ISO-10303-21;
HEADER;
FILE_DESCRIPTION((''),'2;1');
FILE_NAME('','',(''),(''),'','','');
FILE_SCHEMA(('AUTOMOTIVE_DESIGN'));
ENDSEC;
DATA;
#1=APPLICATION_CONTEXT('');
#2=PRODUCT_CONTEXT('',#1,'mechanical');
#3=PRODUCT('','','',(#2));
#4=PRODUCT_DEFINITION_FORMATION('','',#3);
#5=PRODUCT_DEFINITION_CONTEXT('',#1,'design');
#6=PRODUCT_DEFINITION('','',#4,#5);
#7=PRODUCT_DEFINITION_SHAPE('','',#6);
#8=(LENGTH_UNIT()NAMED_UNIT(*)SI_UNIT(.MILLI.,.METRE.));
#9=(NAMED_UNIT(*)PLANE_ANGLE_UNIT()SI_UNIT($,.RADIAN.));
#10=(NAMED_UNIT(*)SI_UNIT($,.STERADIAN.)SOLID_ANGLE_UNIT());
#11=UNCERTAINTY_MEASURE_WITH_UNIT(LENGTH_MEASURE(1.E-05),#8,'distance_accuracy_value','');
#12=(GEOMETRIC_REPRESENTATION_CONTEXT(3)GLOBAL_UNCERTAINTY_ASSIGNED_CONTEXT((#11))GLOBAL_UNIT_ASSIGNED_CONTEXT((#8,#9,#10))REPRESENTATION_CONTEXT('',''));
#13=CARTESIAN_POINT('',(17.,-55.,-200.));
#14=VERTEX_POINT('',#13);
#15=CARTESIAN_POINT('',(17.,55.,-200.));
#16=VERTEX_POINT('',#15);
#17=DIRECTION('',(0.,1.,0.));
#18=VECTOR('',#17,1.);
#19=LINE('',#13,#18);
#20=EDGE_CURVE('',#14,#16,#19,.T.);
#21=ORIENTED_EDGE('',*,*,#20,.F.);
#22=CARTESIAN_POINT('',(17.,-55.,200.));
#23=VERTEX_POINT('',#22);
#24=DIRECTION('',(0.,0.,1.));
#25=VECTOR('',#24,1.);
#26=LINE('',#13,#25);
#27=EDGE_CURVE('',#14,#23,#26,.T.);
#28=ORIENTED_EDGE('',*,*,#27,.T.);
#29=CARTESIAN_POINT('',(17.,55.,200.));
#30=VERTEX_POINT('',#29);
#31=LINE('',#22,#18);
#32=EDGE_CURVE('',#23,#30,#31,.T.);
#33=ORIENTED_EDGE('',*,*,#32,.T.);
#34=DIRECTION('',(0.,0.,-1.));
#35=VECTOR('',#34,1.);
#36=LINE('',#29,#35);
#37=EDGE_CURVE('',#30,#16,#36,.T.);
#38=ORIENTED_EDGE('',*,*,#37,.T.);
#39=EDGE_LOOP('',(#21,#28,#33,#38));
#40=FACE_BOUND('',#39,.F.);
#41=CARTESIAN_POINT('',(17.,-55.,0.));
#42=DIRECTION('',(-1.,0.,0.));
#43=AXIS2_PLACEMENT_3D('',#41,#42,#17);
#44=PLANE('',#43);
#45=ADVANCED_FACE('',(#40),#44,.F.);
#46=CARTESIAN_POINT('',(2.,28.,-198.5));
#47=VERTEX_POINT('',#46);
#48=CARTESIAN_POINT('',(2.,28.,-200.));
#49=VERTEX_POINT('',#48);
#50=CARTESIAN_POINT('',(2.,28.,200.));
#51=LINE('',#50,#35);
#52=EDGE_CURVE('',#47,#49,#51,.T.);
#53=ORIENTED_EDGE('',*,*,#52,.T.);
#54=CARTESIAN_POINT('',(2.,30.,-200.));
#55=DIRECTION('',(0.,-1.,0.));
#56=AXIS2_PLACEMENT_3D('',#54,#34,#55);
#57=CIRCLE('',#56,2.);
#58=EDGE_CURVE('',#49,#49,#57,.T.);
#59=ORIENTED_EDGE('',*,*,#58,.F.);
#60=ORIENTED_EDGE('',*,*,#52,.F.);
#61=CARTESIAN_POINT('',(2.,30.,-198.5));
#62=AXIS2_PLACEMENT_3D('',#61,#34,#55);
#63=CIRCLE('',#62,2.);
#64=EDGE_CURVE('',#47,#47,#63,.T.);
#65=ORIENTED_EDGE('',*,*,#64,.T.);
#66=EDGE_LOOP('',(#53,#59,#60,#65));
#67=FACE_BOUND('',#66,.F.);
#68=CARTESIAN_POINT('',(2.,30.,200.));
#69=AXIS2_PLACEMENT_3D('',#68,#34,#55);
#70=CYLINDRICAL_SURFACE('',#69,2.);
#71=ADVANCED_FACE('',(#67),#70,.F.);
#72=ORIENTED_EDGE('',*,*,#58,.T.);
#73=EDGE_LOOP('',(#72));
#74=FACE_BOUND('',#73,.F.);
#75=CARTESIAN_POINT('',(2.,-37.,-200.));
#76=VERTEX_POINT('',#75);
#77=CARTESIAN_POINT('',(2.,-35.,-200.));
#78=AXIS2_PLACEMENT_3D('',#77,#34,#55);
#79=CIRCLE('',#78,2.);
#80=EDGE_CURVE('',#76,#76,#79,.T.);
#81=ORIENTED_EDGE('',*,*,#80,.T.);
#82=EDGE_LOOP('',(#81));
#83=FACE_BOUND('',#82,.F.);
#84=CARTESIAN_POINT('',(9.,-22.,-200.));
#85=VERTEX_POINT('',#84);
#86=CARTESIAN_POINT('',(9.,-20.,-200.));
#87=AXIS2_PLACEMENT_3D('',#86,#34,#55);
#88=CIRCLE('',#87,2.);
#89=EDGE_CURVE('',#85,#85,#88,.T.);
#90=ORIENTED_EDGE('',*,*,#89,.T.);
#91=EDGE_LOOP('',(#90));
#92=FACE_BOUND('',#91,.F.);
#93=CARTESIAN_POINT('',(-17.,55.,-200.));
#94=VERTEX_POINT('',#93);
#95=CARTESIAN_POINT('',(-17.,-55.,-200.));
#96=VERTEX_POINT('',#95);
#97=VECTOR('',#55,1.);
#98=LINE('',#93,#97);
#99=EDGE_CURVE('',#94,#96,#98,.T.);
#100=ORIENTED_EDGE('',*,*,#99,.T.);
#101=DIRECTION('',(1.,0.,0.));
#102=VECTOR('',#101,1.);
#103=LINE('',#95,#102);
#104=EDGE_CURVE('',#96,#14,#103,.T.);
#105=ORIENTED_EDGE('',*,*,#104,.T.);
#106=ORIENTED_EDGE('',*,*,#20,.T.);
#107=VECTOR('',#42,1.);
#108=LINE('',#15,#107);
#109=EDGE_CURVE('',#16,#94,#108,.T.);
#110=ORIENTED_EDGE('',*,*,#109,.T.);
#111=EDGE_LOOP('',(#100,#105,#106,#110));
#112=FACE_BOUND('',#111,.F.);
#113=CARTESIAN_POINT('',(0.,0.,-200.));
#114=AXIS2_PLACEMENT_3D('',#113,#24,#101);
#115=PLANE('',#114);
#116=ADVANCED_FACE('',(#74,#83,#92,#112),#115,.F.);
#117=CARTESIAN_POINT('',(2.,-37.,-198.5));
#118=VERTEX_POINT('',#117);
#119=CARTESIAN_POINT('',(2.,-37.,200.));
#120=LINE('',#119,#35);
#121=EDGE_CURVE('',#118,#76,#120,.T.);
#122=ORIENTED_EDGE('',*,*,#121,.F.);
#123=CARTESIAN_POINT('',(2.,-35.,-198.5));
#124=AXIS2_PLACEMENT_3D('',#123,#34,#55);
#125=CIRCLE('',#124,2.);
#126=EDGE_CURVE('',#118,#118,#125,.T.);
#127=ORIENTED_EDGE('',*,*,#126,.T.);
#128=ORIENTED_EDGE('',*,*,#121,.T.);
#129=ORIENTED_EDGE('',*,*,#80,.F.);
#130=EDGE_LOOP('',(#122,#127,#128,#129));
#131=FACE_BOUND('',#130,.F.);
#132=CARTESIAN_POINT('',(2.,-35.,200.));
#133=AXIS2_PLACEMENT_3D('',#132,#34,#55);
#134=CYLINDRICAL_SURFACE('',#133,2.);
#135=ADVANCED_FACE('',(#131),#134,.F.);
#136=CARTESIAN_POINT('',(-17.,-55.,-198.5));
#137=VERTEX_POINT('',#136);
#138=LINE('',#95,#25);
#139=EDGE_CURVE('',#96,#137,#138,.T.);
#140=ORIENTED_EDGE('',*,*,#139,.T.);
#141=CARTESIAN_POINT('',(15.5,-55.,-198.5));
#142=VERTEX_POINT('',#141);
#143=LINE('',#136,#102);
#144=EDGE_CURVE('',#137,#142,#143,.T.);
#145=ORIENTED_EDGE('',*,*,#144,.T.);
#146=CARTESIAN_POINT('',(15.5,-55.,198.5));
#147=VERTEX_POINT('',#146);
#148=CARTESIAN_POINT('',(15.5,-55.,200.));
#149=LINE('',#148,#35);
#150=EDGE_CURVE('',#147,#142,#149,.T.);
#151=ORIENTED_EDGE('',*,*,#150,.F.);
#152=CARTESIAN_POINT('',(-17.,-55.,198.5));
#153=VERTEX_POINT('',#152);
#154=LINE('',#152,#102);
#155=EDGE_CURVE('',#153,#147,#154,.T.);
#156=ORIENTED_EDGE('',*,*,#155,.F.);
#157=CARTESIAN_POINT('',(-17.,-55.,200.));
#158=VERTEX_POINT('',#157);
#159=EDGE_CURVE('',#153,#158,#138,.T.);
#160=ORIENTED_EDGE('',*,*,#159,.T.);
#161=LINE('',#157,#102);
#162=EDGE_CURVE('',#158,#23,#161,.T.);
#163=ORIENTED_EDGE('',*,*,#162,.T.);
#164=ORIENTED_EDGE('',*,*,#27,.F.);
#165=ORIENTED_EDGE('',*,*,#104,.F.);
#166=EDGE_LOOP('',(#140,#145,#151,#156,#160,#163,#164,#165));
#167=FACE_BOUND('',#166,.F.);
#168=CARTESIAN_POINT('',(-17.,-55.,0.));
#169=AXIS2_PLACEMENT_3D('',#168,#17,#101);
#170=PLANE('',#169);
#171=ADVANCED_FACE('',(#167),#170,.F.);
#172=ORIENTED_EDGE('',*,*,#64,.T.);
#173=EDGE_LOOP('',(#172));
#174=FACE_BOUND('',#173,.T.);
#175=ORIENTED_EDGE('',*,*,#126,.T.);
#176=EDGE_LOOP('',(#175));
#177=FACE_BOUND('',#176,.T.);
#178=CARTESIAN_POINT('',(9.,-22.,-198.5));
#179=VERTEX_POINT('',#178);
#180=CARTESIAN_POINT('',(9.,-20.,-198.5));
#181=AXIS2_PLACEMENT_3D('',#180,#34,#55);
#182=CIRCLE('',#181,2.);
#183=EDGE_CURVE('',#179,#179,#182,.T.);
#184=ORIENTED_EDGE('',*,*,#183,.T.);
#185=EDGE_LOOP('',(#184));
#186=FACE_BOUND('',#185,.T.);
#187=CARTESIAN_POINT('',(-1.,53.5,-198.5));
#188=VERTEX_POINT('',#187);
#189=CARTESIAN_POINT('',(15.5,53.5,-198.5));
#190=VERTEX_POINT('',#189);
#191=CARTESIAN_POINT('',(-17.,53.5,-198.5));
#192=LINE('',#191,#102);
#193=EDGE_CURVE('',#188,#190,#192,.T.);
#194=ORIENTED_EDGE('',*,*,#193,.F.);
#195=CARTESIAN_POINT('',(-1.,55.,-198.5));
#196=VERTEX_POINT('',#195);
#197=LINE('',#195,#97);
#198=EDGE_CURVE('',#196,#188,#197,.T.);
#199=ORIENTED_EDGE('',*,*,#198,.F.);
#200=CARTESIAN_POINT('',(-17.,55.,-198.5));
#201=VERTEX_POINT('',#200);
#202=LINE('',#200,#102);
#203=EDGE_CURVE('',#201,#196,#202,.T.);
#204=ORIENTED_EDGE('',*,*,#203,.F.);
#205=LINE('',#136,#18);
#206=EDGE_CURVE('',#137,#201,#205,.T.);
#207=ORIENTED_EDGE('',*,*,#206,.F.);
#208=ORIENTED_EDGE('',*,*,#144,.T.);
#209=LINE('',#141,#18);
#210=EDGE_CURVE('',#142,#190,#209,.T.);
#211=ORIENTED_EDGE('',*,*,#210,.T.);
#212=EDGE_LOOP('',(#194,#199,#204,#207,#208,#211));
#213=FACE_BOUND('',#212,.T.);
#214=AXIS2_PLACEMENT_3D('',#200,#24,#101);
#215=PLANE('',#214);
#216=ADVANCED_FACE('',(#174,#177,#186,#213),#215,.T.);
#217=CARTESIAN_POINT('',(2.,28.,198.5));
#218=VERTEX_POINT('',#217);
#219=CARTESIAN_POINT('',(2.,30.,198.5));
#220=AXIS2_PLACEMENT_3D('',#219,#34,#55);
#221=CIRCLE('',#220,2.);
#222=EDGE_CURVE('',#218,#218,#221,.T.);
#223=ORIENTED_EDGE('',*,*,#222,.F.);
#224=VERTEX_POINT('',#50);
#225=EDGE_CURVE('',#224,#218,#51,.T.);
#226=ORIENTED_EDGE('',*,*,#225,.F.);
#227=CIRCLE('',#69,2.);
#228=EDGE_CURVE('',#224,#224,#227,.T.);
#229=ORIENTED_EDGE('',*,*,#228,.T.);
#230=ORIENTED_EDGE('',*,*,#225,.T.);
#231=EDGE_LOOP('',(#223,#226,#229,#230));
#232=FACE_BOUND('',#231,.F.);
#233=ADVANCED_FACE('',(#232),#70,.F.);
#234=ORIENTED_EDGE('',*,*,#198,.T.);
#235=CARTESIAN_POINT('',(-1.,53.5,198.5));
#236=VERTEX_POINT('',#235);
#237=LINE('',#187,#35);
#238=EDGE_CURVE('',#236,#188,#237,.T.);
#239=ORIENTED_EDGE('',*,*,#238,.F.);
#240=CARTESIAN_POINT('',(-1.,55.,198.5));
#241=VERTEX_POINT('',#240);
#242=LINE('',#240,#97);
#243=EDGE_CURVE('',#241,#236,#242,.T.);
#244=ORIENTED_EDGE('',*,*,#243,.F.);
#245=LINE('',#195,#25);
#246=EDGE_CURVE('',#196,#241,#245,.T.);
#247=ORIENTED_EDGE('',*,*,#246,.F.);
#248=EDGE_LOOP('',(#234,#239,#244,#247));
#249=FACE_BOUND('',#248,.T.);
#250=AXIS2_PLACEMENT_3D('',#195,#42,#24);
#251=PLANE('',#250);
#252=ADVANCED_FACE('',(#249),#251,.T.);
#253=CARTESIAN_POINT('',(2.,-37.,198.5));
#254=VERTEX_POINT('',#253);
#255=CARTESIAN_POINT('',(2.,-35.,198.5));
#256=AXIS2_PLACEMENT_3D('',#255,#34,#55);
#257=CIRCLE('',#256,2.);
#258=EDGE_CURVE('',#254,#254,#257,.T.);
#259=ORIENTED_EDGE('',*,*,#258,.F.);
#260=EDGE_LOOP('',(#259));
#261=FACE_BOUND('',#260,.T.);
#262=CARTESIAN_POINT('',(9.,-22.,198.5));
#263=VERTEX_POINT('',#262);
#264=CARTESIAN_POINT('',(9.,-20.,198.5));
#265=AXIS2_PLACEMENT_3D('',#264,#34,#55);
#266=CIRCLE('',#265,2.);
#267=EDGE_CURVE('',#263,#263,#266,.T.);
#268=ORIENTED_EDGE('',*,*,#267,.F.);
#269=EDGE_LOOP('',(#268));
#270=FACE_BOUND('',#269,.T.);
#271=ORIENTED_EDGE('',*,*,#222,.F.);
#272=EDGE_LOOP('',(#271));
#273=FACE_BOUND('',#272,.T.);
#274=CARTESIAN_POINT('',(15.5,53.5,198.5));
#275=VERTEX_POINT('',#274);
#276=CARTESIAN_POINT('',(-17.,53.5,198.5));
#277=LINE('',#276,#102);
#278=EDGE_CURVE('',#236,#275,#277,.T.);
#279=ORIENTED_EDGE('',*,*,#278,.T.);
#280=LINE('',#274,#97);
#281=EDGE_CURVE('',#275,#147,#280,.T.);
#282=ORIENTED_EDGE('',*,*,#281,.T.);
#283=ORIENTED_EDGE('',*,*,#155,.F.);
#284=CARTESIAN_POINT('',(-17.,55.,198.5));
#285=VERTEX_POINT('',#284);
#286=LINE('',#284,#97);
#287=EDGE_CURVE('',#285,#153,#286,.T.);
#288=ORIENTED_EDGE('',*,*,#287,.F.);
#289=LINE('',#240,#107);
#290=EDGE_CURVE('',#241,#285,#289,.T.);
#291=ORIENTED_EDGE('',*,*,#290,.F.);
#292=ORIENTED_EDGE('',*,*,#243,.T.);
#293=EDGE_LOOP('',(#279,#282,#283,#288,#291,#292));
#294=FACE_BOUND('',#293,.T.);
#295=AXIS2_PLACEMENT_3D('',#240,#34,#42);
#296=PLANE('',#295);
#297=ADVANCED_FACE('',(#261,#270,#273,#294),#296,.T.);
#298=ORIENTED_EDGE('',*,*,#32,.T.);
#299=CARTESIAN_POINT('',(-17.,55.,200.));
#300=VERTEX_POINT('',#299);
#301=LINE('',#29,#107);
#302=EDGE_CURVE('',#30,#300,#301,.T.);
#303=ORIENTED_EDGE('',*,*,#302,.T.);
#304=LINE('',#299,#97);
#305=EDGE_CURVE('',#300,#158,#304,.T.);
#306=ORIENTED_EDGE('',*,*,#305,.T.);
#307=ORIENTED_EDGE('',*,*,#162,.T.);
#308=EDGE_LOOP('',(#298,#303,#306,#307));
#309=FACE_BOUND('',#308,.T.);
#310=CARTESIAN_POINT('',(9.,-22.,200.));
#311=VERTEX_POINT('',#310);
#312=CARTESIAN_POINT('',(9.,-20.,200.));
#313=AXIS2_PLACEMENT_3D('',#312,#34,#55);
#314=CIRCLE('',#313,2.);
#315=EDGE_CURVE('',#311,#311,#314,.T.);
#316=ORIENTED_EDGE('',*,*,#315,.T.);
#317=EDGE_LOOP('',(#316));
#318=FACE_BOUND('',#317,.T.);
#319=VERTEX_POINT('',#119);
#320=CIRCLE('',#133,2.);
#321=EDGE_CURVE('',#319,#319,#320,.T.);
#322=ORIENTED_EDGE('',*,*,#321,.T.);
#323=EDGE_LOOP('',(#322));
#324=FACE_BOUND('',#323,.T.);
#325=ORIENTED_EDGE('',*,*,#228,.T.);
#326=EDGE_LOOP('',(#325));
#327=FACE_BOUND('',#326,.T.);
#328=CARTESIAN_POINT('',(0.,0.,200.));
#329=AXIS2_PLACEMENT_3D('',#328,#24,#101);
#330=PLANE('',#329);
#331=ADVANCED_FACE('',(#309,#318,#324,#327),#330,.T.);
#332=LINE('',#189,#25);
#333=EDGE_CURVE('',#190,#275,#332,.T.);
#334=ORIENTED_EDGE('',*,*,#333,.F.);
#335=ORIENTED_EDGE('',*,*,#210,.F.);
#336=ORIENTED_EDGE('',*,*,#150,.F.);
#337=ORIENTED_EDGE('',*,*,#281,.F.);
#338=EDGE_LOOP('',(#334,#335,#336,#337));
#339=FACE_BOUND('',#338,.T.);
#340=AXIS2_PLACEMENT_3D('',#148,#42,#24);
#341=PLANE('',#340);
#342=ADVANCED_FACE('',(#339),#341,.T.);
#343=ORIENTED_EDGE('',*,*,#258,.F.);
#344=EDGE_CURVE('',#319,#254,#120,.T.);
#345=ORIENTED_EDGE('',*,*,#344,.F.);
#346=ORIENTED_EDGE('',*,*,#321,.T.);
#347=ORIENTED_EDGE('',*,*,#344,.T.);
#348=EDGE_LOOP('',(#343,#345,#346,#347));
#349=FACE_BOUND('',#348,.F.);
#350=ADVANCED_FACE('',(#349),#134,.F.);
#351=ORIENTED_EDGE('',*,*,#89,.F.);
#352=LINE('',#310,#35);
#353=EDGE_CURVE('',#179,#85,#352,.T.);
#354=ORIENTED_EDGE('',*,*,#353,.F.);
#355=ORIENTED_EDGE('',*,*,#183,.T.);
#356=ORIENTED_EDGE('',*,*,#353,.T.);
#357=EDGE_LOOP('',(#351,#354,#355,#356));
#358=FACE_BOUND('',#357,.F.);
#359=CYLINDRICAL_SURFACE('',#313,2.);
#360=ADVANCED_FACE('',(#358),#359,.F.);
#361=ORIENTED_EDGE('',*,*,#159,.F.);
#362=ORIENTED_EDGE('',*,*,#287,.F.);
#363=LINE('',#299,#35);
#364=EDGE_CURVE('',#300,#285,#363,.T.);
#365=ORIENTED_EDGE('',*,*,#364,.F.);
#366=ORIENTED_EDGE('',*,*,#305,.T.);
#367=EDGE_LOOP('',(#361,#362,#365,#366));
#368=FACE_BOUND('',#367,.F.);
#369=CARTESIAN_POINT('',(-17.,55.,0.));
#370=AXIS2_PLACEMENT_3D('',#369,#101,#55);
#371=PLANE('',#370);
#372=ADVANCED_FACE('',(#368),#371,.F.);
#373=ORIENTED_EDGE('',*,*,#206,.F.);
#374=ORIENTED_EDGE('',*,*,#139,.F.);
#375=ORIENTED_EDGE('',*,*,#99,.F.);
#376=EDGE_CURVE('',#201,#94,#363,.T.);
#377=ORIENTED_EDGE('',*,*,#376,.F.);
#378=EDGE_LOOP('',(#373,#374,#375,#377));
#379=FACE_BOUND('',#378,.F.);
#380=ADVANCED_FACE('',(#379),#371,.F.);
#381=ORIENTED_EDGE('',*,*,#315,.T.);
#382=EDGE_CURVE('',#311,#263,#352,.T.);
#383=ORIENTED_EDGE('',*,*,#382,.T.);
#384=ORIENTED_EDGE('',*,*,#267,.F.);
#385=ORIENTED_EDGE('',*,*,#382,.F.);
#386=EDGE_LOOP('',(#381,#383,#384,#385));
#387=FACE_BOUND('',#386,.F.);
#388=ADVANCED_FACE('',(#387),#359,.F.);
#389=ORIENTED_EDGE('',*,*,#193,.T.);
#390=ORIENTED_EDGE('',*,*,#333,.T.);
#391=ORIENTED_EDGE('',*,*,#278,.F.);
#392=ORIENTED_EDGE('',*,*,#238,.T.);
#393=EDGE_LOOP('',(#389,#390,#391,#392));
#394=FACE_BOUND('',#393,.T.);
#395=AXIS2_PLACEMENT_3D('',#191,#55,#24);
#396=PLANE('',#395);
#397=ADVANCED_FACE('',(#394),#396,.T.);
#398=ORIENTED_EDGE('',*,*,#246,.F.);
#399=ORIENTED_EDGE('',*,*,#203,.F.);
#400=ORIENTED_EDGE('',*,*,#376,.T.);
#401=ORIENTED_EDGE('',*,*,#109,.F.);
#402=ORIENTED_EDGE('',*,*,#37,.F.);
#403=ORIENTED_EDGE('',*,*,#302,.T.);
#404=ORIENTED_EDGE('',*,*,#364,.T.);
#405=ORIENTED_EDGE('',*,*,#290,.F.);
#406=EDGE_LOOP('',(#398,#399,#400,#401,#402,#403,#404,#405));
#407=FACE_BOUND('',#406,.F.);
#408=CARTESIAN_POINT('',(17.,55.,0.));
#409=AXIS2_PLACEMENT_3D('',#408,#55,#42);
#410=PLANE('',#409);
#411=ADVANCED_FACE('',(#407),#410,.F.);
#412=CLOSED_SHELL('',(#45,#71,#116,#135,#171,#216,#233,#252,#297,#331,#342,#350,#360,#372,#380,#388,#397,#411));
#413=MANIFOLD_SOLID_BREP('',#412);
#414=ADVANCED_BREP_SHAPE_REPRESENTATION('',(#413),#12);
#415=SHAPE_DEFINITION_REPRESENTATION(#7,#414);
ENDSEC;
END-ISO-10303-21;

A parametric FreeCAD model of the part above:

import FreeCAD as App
import Part
import Sketcher

V = App.Vector
Q = App.Units.Quantity

doc = App.newDocument("Part")
params = doc.addObject("Spreadsheet::Sheet", "Params")
for row, (alias, value) in enumerate([
    ("sketch1_width", "34 mm"),
    ("sketch1_height", "110 mm"),
    ("pad1_length", "400 mm"),
    ("sketch2_diameter", "4 mm"),
    ("hole_diameter", "4 mm"),
    ("sketch3_height", "397 mm"),
    ("sketch3_width", "108.5 mm"),
    ("pocket1_length", "32.5 mm"),
    ("sketch4_width", "16 mm"),
    ("sketch4_height", "397 mm"),
    ("pocket2_length", "32.5 mm"),
], start=1):
    params.set(f"A{row}", alias)
    params.set(f"B{row}", "=" + value)
    params.setAlias(f"B{row}", alias)

body = doc.addObject("PartDesign::Body", "Body")

# Sketch on XY plane
sketch1 = body.newObject("Sketcher::SketchObject", "Sketch")
sketch1.AttachmentSupport = (doc.getObject("XY_Plane"), [""])
sketch1.MapMode = "FlatFace"
sketch1.addGeometry(Part.LineSegment(V(-17, 55, 0), V(-17, -55, 0)), False)
sketch1.addGeometry(Part.LineSegment(V(-17, -55, 0), V(17, -55, 0)), False)
sketch1.addGeometry(Part.LineSegment(V(17, -55, 0), V(17, 55, 0)), False)
sketch1.addGeometry(Part.LineSegment(V(17, 55, 0), V(-17, 55, 0)), False)
sketch1.addConstraint(Sketcher.Constraint("Coincident", 0, 2, 1, 1))
sketch1.addConstraint(Sketcher.Constraint("Coincident", 1, 2, 2, 1))
sketch1.addConstraint(Sketcher.Constraint("Coincident", 2, 2, 3, 1))
sketch1.addConstraint(Sketcher.Constraint("Coincident", 3, 2, 0, 1))
sketch1.addConstraint(Sketcher.Constraint("Vertical", 0))
sketch1.addConstraint(Sketcher.Constraint("Horizontal", 1))
sketch1.addConstraint(Sketcher.Constraint("Vertical", 2))
sketch1.addConstraint(Sketcher.Constraint("Horizontal", 3))
sketch1.addConstraint(Sketcher.Constraint("Symmetric", 0, 2, 2, 2, -1, 1))
sketch1.addConstraint(Sketcher.Constraint("DistanceX", 1, 1, 1, 2, Q("34 mm")))
sketch1.addConstraint(Sketcher.Constraint("DistanceY", 0, 2, 0, 1, Q("110 mm")))
sketch1.setExpression("Constraints[9]", "Params.sketch1_width")
sketch1.setExpression("Constraints[10]", "Params.sketch1_height")
pad1 = body.newObject("PartDesign::Pad", "Pad")
pad1.Profile = sketch1
pad1.setExpression("Length", "Params.pad1_length")
pad1.Midplane = True

# Sketch on XY plane
sketch2 = body.newObject("Sketcher::SketchObject", "Sketch001")
sketch2.AttachmentSupport = (doc.getObject("XY_Plane"), [""])
sketch2.MapMode = "FlatFace"
sketch2.AttachmentOffset = App.Placement(V(0, 0, 200), App.Rotation())
sketch2.addGeometry(Part.Circle(V(2, 30, 0), V(0, 0, 1), 2), False)
sketch2.addGeometry(Part.Circle(V(9, -20, 0), V(0, 0, 1), 2), False)
sketch2.addGeometry(Part.Circle(V(2, -35, 0), V(0, 0, 1), 2), False)
sketch2.addConstraint(Sketcher.Constraint("Equal", 0, 1))
sketch2.addConstraint(Sketcher.Constraint("Equal", 1, 2))
sketch2.addConstraint(Sketcher.Constraint("Vertical", 0, 3, 2, 3))
sketch2.addConstraint(Sketcher.Constraint("Diameter", 0, Q("4 mm")))
sketch2.addConstraint(Sketcher.Constraint("DistanceX", -1, 1, 0, 3, Q("2 mm")))
sketch2.addConstraint(Sketcher.Constraint("DistanceY", -1, 1, 0, 3, Q("30 mm")))
sketch2.addConstraint(Sketcher.Constraint("DistanceX", -1, 1, 1, 3, Q("9 mm")))
sketch2.addConstraint(Sketcher.Constraint("DistanceY", 1, 3, -1, 1, Q("20 mm")))
sketch2.addConstraint(Sketcher.Constraint("DistanceY", 2, 3, -1, 1, Q("35 mm")))
sketch2.setExpression("Constraints[3]", "Params.sketch2_diameter")
doc.recompute()
hole = body.newObject("PartDesign::Hole", "Hole")
hole.Profile = sketch2
hole.ThreadType = "None"
hole.setExpression("Diameter", "Params.hole_diameter")
hole.DepthType = "ThroughAll"

# Sketch on YZ plane
sketch3 = body.newObject("Sketcher::SketchObject", "Sketch002")
sketch3.AttachmentSupport = (doc.getObject("YZ_Plane"), [""])
sketch3.MapMode = "FlatFace"
sketch3.AttachmentOffset = App.Placement(V(0, 0, -17), App.Rotation())
sketch3.addGeometry(Part.LineSegment(V(-55, -198.5, 0), V(-55, 198.5, 0)), False)
sketch3.addGeometry(Part.LineSegment(V(-55, 198.5, 0), V(53.5, 198.5, 0)), False)
sketch3.addGeometry(Part.LineSegment(V(53.5, 198.5, 0), V(53.5, -198.5, 0)), False)
sketch3.addGeometry(Part.LineSegment(V(53.5, -198.5, 0), V(-55, -198.5, 0)), False)
sketch3.addConstraint(Sketcher.Constraint("Coincident", 0, 2, 1, 1))
sketch3.addConstraint(Sketcher.Constraint("Coincident", 1, 2, 2, 1))
sketch3.addConstraint(Sketcher.Constraint("Coincident", 2, 2, 3, 1))
sketch3.addConstraint(Sketcher.Constraint("Coincident", 3, 2, 0, 1))
sketch3.addConstraint(Sketcher.Constraint("Vertical", 0))
sketch3.addConstraint(Sketcher.Constraint("Horizontal", 1))
sketch3.addConstraint(Sketcher.Constraint("Vertical", 2))
sketch3.addConstraint(Sketcher.Constraint("Horizontal", 3))
sketch3.addConstraint(Sketcher.Constraint("DistanceY", 0, 1, 0, 2, Q("397 mm")))
sketch3.addConstraint(Sketcher.Constraint("DistanceX", 1, 1, 1, 2, Q("108.5 mm")))
sketch3.addConstraint(Sketcher.Constraint("DistanceX", 0, 2, -1, 1, Q("55 mm")))
sketch3.addConstraint(Sketcher.Constraint("DistanceY", -1, 1, 0, 2, Q("198.5 mm")))
sketch3.setExpression("Constraints[8]", "Params.sketch3_height")
sketch3.setExpression("Constraints[9]", "Params.sketch3_width")
pocket1 = body.newObject("PartDesign::Pocket", "Pocket")
pocket1.Profile = sketch3
pocket1.setExpression("Length", "Params.pocket1_length")
pocket1.Reversed = True

# Sketch on XZ plane
sketch4 = body.newObject("Sketcher::SketchObject", "Sketch003")
sketch4.AttachmentSupport = (doc.getObject("XZ_Plane"), [""])
sketch4.MapMode = "FlatFace"
sketch4.AttachmentOffset = App.Placement(V(0, 0, -55), App.Rotation())
sketch4.addGeometry(Part.LineSegment(V(-1, -198.5, 0), V(-17, -198.5, 0)), False)
sketch4.addGeometry(Part.LineSegment(V(-17, -198.5, 0), V(-17, 198.5, 0)), False)
sketch4.addGeometry(Part.LineSegment(V(-17, 198.5, 0), V(-1, 198.5, 0)), False)
sketch4.addGeometry(Part.LineSegment(V(-1, 198.5, 0), V(-1, -198.5, 0)), False)
sketch4.addConstraint(Sketcher.Constraint("Coincident", 0, 2, 1, 1))
sketch4.addConstraint(Sketcher.Constraint("Coincident", 1, 2, 2, 1))
sketch4.addConstraint(Sketcher.Constraint("Coincident", 2, 2, 3, 1))
sketch4.addConstraint(Sketcher.Constraint("Coincident", 3, 2, 0, 1))
sketch4.addConstraint(Sketcher.Constraint("Horizontal", 0))
sketch4.addConstraint(Sketcher.Constraint("Vertical", 1))
sketch4.addConstraint(Sketcher.Constraint("Horizontal", 2))
sketch4.addConstraint(Sketcher.Constraint("Vertical", 3))
sketch4.addConstraint(Sketcher.Constraint("DistanceX", 0, 2, 0, 1, Q("16 mm")))
sketch4.addConstraint(Sketcher.Constraint("DistanceY", 1, 1, 1, 2, Q("397 mm")))
sketch4.addConstraint(Sketcher.Constraint("DistanceX", 0, 2, -1, 1, Q("17 mm")))
sketch4.addConstraint(Sketcher.Constraint("DistanceY", 0, 2, -1, 1, Q("198.5 mm")))
sketch4.setExpression("Constraints[8]", "Params.sketch4_width")
sketch4.setExpression("Constraints[9]", "Params.sketch4_height")
pocket2 = body.newObject("PartDesign::Pocket", "Pocket001")
pocket2.Profile = sketch4
pocket2.setExpression("Length", "Params.pocket2_length")
pocket2.Reversed = True

doc.recompute()
